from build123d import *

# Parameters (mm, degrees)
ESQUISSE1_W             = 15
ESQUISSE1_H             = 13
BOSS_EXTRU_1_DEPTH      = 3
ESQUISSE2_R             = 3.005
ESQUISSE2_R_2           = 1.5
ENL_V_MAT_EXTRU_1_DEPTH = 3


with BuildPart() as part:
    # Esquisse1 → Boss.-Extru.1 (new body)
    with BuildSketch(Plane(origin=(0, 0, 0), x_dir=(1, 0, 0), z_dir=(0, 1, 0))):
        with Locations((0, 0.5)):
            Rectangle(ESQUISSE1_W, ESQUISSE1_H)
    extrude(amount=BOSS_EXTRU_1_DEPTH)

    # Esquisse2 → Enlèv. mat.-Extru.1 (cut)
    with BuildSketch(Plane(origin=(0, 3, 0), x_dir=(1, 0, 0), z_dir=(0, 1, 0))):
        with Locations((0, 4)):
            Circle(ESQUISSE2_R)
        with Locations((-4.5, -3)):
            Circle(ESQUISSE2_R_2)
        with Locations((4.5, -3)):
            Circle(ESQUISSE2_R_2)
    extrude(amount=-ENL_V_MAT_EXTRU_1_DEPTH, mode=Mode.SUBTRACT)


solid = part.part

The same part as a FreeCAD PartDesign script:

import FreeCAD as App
import Part
import Sketcher
from FreeCAD import Vector


def add_polygon(sketch, points):
    """Adds a closed chain of lines whose ends are joined by coincident constraints."""
    first, n = sketch.GeometryCount, len(points)
    for a, b in zip(points, points[1:] + points[:1]):
        sketch.addGeometry(Part.LineSegment(App.Vector(*a, 0), App.Vector(*b, 0)), False)
    for i in range(n):
        sketch.addConstraint(Sketcher.Constraint("Coincident", first + i, 2, first + (i + 1) % n, 1))

doc = App.newDocument("Part")
body = doc.addObject("PartDesign::Body", "Body")

# Sketch on XZ plane
sketch1 = doc.addObject("Sketcher::SketchObject", "Sketch")
body.addObject(sketch1)
sketch1.AttachmentSupport = (doc.XZ_Plane, [""])
sketch1.MapMode = "FlatFace"
add_polygon(sketch1, [(-7.5, -7), (-7.5, 6), (7.5, 6), (7.5, -7)])  # lines 0-3
sketch1.addConstraint([
    Sketcher.Constraint("Vertical", 0),
    Sketcher.Constraint("Horizontal", 1),
    Sketcher.Constraint("Vertical", 2),
    Sketcher.Constraint("Horizontal", 3),
    Sketcher.Constraint("DistanceX", 1, 1, 1, 2, 15.0),
    Sketcher.Constraint("DistanceY", 0, 1, 0, 2, 13.0),
    Sketcher.Constraint("DistanceY", -1, 1, 0, 2, 6.0),
    Sketcher.Constraint("DistanceX", 0, 2, -1, 1, 7.5),
])
pad1 = doc.addObject("PartDesign::Pad", "Pad")
body.addObject(pad1)
pad1.Profile = sketch1
pad1.Length = 3
pad1.Reversed = True

# Sketch on XZ plane
sketch2 = doc.addObject("Sketcher::SketchObject", "Sketch001")
body.addObject(sketch2)
sketch2.AttachmentSupport = (doc.XZ_Plane, [""])
sketch2.MapMode = "FlatFace"
sketch2.AttachmentOffset = App.Placement(Vector(0, 0, -3), App.Rotation())
sketch2.addGeometry([
    Part.Circle(Vector(0, -4, 0), Vector(0, 0, 1), 3.005),
    Part.Circle(Vector(-4.5, 3, 0), Vector(0, 0, 1), 1.5),
    Part.Circle(Vector(4.5, 3, 0), Vector(0, 0, 1), 1.5),
], False)
sketch2.addConstraint([
    Sketcher.Constraint("Equal", 1, 2),
    Sketcher.Constraint("Symmetric", 1, 3, 2, 3, -2),
    Sketcher.Constraint("PointOnObject", 0, 3, -2),
    Sketcher.Constraint("Diameter", 1, 3.0),
    Sketcher.Constraint("Diameter", 0, 6.01),
    Sketcher.Constraint("DistanceY", 0, 3, -1, 1, 4.0),
    Sketcher.Constraint("DistanceY", -1, 1, 1, 3, 3.0),
    Sketcher.Constraint("DistanceX", 1, 3, 2, 3, 9.0),
])
pocket1 = doc.addObject("PartDesign::Pocket", "Pocket")
body.addObject(pocket1)
pocket1.Profile = sketch2
pocket1.Length = 3
pocket1.Reversed = True

doc.recompute()
